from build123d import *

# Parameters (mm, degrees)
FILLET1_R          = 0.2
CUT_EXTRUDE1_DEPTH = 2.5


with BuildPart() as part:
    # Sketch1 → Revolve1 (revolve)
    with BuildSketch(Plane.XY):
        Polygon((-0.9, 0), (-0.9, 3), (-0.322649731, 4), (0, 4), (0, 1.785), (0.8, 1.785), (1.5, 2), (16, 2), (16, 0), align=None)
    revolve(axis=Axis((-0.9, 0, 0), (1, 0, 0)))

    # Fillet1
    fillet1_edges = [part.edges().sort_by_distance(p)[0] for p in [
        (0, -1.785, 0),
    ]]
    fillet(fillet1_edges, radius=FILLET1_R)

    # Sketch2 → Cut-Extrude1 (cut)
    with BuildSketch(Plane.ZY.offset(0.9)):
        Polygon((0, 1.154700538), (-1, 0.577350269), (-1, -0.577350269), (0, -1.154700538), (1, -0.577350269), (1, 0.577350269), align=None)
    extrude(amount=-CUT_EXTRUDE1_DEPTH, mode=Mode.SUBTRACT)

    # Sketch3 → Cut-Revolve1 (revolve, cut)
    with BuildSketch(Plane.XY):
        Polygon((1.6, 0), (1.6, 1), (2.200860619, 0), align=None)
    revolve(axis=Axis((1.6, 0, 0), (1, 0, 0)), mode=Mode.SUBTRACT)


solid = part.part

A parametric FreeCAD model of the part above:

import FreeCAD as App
import Part
import Sketcher
Q = App.Units.Quantity


def edges_at(feature, points):
    """Names of the edges that pass closest to the given points."""
    edges = feature.Shape.Edges
    near = lambda p: min(range(len(edges)), key=lambda i: edges[i].distToShape(Part.Vertex(*p))[0])
    return sorted({f"Edge{near(p) + 1}" for p in points})


def add_polygon(sketch, points):
    """Adds a closed chain of lines whose ends are joined by coincident constraints."""
    first, n = sketch.GeometryCount, len(points)
    for a, b in zip(points, points[1:] + points[:1]):
        sketch.addGeometry(Part.LineSegment(App.Vector(*a, 0), App.Vector(*b, 0)), False)
    for i in range(n):
        sketch.addConstraint(Sketcher.Constraint("Coincident", first + i, 2, first + (i + 1) % n, 1))

doc = App.newDocument("Part")
body = doc.addObject("PartDesign::Body", "Body")

# Sketch on XY plane
sketch1 = body.newObject("Sketcher::SketchObject", "Sketch")
sketch1.AttachmentSupport = (doc.getObject("XY_Plane"), [""])
sketch1.MapMode = "FlatFace"
add_polygon(sketch1, [(-0.9, 3), (-0.9, 0), (16, 0), (16, 2), (1.5, 2), (0.8, 1.785), (0, 1.785), (0, 4), (-0.32265, 4)])  # lines 0-8
sketch1.addConstraint(Sketcher.Constraint("Vertical", 0))
sketch1.addConstraint(Sketcher.Constraint("Horizontal", 1))
sketch1.addConstraint(Sketcher.Constraint("Vertical", 2))
sketch1.addConstraint(Sketcher.Constraint("Horizontal", 3))
sketch1.addConstraint(Sketcher.Constraint("Horizontal", 5))
sketch1.addConstraint(Sketcher.Constraint("Vertical", 6))
sketch1.addConstraint(Sketcher.Constraint("Horizontal", 7))
sketch1.addConstraint(Sketcher.Constraint("PointOnObject", 0, 2, -1))
sketch1.addConstraint(Sketcher.Constraint("PointOnObject", 5, 2, -2))
sketch1.addConstraint(Sketcher.Constraint("DistanceY", 0, 2, 0, 1, Q("3 mm")))
sketch1.addConstraint(Sketcher.Constraint("DistanceY", 2, 1, 2, 2, Q("2 mm")))
sketch1.addConstraint(Sketcher.Constraint("Angle", 8, Q("-120 deg")))
sketch1.addConstraint(Sketcher.Constraint("DistanceX", 1, 1, 1, 2, Q("16.9 mm")))
sketch1.addConstraint(Sketcher.Constraint("DistanceX", 3, 2, 3, 1, Q("14.5 mm")))
sketch1.addConstraint(Sketcher.Constraint("DistanceX", 5, 2, 5, 1, Q("0.8 mm")))
sketch1.addConstraint(Sketcher.Constraint("DistanceX", -1, 1, 1, 2, Q("16 mm")))
sketch1.addConstraint(Sketcher.Constraint("DistanceY", -1, 1, 6, 2, Q("4 mm")))
sketch1.addConstraint(Sketcher.Constraint("DistanceY", 6, 1, 6, 2, Q("2.215 mm")))
revolution = body.newObject("PartDesign::Revolution", "Revolution")
revolution.Profile = sketch1
revolution.ReferenceAxis = (sketch1, ["H_Axis"])
revolution.Angle = 360
doc.recompute()

fillet = body.newObject("PartDesign::Fillet", "Fillet")
fillet.Base = (revolution, edges_at(revolution, [(0, -1.785, 0)]))
fillet.Radius = 0.2

# Sketch on YZ plane
sketch2 = body.newObject("Sketcher::SketchObject", "Sketch001")
sketch2.AttachmentSupport = (doc.getObject("YZ_Plane"), [""])
sketch2.MapMode = "FlatFace"
sketch2.AttachmentOffset = App.Placement(App.Vector(0, 0, -0.9), App.Rotation())
add_polygon(sketch2, [(1.154701, 0), (0.57735, -1), (-0.57735, -1), (-1.154701, 0), (-0.57735, 1), (0.57735, 1)])  # lines 0-5
sketch2.addConstraint(Sketcher.Constraint("Horizontal", 1))
sketch2.addConstraint(Sketcher.Constraint("Horizontal", 4))
sketch2.addConstraint(Sketcher.Constraint("Symmetric", 0, 2, 3, 2, -1, 1))
sketch2.addConstraint(Sketcher.Constraint("Symmetric", 2, 2, 5, 2, -1, 1))
sketch2.addConstraint(Sketcher.Constraint("PointOnObject", 2, 2, -1))
sketch2.addConstraint(Sketcher.Constraint("Parallel", 2, 5))
sketch2.addConstraint(Sketcher.Constraint("Vertical", 1, 2, 3, 2))
sketch2.addConstraint(Sketcher.Constraint("Angle", 0, Q("-120 deg")))
sketch2.addConstraint(Sketcher.Constraint("DistanceY", 0, 2, -1, 1, Q("1 mm")))
sketch2.addConstraint(Sketcher.Constraint("DistanceX", 1, 2, 1, 1, Q("1.154701 mm")))
pocket1 = body.newObject("PartDesign::Pocket", "Pocket")
pocket1.Profile = sketch2
pocket1.Length = 2.5
pocket1.Reversed = True

# Sketch on XY plane
sketch3 = body.newObject("Sketcher::SketchObject", "Sketch002")
sketch3.AttachmentSupport = (doc.getObject("XY_Plane"), [""])
sketch3.MapMode = "FlatFace"
add_polygon(sketch3, [(1.6, 1), (1.6, 0), (2.200861, 0)])  # lines 0-2
sketch3.addConstraint(Sketcher.Constraint("Vertical", 0))
sketch3.addConstraint(Sketcher.Constraint("Horizontal", 1))
sketch3.addConstraint(Sketcher.Constraint("PointOnObject", 0, 2, -1))
sketch3.addConstraint(Sketcher.Constraint("DistanceY", 0, 2, 0, 1, Q("1 mm")))
sketch3.addConstraint(Sketcher.Constraint("Angle", 2, Q("121 deg")))
sketch3.addConstraint(Sketcher.Constraint("DistanceX", -1, 1, 0, 2, Q("1.6 mm")))
groove = body.newObject("PartDesign::Groove", "Groove")
groove.Profile = sketch3
groove.ReferenceAxis = (sketch3, ["H_Axis"])
groove.Angle = 360

doc.recompute()
